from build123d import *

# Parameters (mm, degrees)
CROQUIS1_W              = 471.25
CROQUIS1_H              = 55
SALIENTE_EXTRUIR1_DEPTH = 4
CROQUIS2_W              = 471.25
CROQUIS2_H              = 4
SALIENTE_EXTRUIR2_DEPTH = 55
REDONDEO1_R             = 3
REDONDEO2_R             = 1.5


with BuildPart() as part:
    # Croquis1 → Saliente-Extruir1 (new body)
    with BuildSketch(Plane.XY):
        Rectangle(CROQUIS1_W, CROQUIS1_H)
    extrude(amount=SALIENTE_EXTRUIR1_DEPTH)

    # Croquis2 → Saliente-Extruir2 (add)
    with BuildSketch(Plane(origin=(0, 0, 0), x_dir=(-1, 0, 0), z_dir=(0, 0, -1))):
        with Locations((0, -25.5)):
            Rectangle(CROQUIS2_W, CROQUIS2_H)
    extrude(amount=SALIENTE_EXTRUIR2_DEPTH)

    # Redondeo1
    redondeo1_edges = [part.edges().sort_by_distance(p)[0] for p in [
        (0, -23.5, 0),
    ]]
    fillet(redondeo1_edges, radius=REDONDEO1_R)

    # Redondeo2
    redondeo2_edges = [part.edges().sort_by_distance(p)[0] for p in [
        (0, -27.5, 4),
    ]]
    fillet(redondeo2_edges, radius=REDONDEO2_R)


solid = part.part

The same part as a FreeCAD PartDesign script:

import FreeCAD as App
import Part
import Sketcher

V = App.Vector
Q = App.Units.Quantity


def edges_at(feature, points):
    """Names of the edges that pass closest to the given points."""
    edges = feature.Shape.Edges
    near = lambda p: min(range(len(edges)), key=lambda i: edges[i].distToShape(Part.Vertex(*p))[0])
    return sorted({f"Edge{near(p) + 1}" for p in points})

doc = App.newDocument("Part")
body = doc.addObject("PartDesign::Body", "Body")

sketch1 = body.newObject("Sketcher::SketchObject", "Sketch")
sketch1.AttachmentSupport = (doc.getObject("XY_Plane"), [""])
sketch1.MapMode = "FlatFace"
sketch1.addGeometry([
    Part.LineSegment(V(-236, 28, 0), V(-236, -28, 0)),
    Part.LineSegment(V(-236, -28, 0), V(236, -28, 0)),
    Part.LineSegment(V(236, -28, 0), V(236, 28, 0)),
    Part.LineSegment(V(236, 28, 0), V(-236, 28, 0)),
], False)
sketch1.addConstraint([
    Sketcher.Constraint("Coincident", 0, 2, 1, 1),
    Sketcher.Constraint("Coincident", 1, 2, 2, 1),
    Sketcher.Constraint("Coincident", 2, 2, 3, 1),
    Sketcher.Constraint("Coincident", 3, 2, 0, 1),
    Sketcher.Constraint("Vertical", 0),
    Sketcher.Constraint("Horizontal", 1),
    Sketcher.Constraint("Vertical", 2),
    Sketcher.Constraint("Horizontal", 3),
    Sketcher.Constraint("Symmetric", 0, 2, 2, 2, -1, 1),
    Sketcher.Constraint("DistanceY", 0, 2, 0, 1, Q("55 mm")),
    Sketcher.Constraint("DistanceX", 1, 1, 1, 2, Q("471.25 mm")),
])
pad1 = body.newObject("PartDesign::Pad", "Pad")
pad1.Profile = sketch1
pad1.Length = 4

sketch2 = body.newObject("Sketcher::SketchObject", "Sketch001")
sketch2.AttachmentSupport = (doc.getObject("XY_Plane"), [""])
sketch2.MapMode = "FlatFace"
sketch2.addGeometry([
    Part.LineSegment(V(235.6, -23.5, 0), V(235.6, -27.5, 0)),
    Part.LineSegment(V(235.6, -27.5, 0), V(-235.6, -27.5, 0)),
    Part.LineSegment(V(-235.6, -27.5, 0), V(-235.6, -23.5, 0)),
    Part.LineSegment(V(-235.6, -23.5, 0), V(235.6, -23.5, 0)),
], False)
sketch2.addConstraint([
    Sketcher.Constraint("Coincident", 0, 2, 1, 1),
    Sketcher.Constraint("Coincident", 1, 2, 2, 1),
    Sketcher.Constraint("Coincident", 2, 2, 3, 1),
    Sketcher.Constraint("Coincident", 3, 2, 0, 1),
    Sketcher.Constraint("Vertical", 0),
    Sketcher.Constraint("Horizontal", 1),
    Sketcher.Constraint("Vertical", 2),
    Sketcher.Constraint("Horizontal", 3),
    Sketcher.Constraint("DistanceY", 0, 2, 0, 1, Q("4 mm")),
    Sketcher.Constraint("DistanceX", 1, 2, 1, 1, Q("471.25 mm")),
    Sketcher.Constraint("DistanceY", 0, 2, -1, 1, Q("27.5 mm")),
    Sketcher.Constraint("DistanceX", -1, 1, 0, 2, Q("235.625 mm")),
])
pad2 = body.newObject("PartDesign::Pad", "Pad001")
pad2.Profile = sketch2
pad2.Length = 55
pad2.Reversed = True
doc.recompute()

fillet = body.newObject("PartDesign::Fillet", "Fillet")
fillet.Base = (pad2, edges_at(pad2, [(0, -23.5, 0)]))
fillet.Radius = 3
doc.recompute()

fillet2 = body.newObject("PartDesign::Fillet", "Fillet001")
fillet2.Base = (fillet, edges_at(fillet, [(0, -27.5, 4)]))
fillet2.Radius = 1.5

doc.recompute()
